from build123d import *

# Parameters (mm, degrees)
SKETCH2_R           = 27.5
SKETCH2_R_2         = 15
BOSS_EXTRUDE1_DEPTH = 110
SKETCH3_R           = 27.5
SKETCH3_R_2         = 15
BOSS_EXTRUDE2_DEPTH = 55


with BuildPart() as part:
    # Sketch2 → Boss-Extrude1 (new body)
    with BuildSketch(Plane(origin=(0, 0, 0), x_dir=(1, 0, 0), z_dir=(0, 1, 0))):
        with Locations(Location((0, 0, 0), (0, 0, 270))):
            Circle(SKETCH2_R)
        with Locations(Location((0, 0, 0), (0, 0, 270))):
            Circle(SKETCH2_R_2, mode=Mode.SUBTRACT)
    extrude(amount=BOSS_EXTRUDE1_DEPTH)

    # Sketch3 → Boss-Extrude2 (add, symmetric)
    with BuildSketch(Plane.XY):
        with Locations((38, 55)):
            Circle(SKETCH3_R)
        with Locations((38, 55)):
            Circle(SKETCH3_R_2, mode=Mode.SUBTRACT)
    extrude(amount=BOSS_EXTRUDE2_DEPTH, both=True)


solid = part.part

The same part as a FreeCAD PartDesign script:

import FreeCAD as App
import Part
import Sketcher
from FreeCAD import Vector
Q = App.Units.Quantity

doc = App.newDocument("Part")
body = doc.addObject("PartDesign::Body", "Body")

# Sketch on XZ plane
sketch1 = doc.addObject("Sketcher::SketchObject", "Sketch")
body.addObject(sketch1)
sketch1.AttachmentSupport = (doc.XZ_Plane, [""])
sketch1.MapMode = "FlatFace"
sketch1.addGeometry(Part.Circle(Vector(0, 0, 0), Vector(0, 0, 1), 28), False)
sketch1.addGeometry(Part.Circle(Vector(0, 0, 0), Vector(0, 0, 1), 15), False)
sketch1.addConstraint(Sketcher.Constraint("Coincident", 0, 3, -1, 1))
sketch1.addConstraint(Sketcher.Constraint("Coincident", 1, 3, -1, 1))
sketch1.addConstraint(Sketcher.Constraint("Diameter", 0, Q("55 mm")))
sketch1.addConstraint(Sketcher.Constraint("Diameter", 1, Q("30 mm")))
pad1 = doc.addObject("PartDesign::Pad", "Pad")
body.addObject(pad1)
pad1.Profile = sketch1
pad1.Length = 110
pad1.Reversed = True

# Sketch on XY plane
sketch2 = doc.addObject("Sketcher::SketchObject", "Sketch001")
body.addObject(sketch2)
sketch2.AttachmentSupport = (doc.XY_Plane, [""])
sketch2.MapMode = "FlatFace"
sketch2.addGeometry(Part.Circle(Vector(38, 55, 0), Vector(0, 0, 1), 28), False)
sketch2.addGeometry(Part.Circle(Vector(38, 55, 0), Vector(0, 0, 1), 15), False)
sketch2.addConstraint(Sketcher.Constraint("Coincident", 1, 3, 0, 3))
sketch2.addConstraint(Sketcher.Constraint("Diameter", 0, Q("55 mm")))
sketch2.addConstraint(Sketcher.Constraint("Diameter", 1, Q("30 mm")))
sketch2.addConstraint(Sketcher.Constraint("DistanceX", -1, 1, 0, 3, Q("38 mm")))
sketch2.addConstraint(Sketcher.Constraint("DistanceY", -1, 1, 0, 3, Q("55 mm")))
pad2 = doc.addObject("PartDesign::Pad", "Pad001")
body.addObject(pad2)
pad2.Profile = sketch2
pad2.Length = 110
pad2.Midplane = True

doc.recompute()
